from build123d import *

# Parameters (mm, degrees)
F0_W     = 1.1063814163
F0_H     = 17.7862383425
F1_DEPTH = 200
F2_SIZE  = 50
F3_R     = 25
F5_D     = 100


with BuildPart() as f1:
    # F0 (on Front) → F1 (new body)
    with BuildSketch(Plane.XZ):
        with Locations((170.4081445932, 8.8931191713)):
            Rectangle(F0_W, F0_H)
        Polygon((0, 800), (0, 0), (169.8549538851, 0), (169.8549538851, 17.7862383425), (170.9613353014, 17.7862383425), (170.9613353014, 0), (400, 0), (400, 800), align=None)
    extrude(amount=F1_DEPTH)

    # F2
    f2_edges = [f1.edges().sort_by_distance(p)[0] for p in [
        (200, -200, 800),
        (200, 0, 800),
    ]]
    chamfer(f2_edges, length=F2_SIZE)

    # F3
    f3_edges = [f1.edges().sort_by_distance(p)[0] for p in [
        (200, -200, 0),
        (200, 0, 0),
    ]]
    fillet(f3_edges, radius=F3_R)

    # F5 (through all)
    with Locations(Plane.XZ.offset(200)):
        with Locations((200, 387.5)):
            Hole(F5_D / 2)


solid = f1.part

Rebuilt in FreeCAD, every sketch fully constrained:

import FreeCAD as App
import Part
import Sketcher
Q = App.Units.Quantity


def edges_at(feature, points):
    """Names of the edges that pass closest to the given points."""
    edges = feature.Shape.Edges
    near = lambda p: min(range(len(edges)), key=lambda i: edges[i].distToShape(Part.Vertex(*p))[0])
    return sorted({f"Edge{near(p) + 1}" for p in points})

doc = App.newDocument("Part")
params = doc.addObject("Spreadsheet::Sheet", "Params")
for row, (alias, value) in enumerate([
    ("sketch1_width", "400 mm"),
    ("sketch1_height", "800 mm"),
    ("pad1_length", "200 mm"),
    ("chamfer_size", "50 mm"),
    ("fillet_radius", "25 mm"),
    ("sketch2_diameter", "100 mm"),
    ("hole_diameter", "100 mm"),
], start=1):
    params.set(f"A{row}", alias)
    params.set(f"B{row}", "=" + value)
    params.setAlias(f"B{row}", alias)

body = doc.addObject("PartDesign::Body", "Body")

sketch1 = body.newObject("Sketcher::SketchObject", "Sketch")
sketch1.AttachmentSupport = (doc.getObject("XZ_Plane"), [""])
sketch1.MapMode = "FlatFace"
sketch1.addGeometry(Part.LineSegment(App.Vector(400, 0, 0), App.Vector(400, 800, 0)), False)
sketch1.addGeometry(Part.LineSegment(App.Vector(400, 800, 0), App.Vector(0, 800, 0)), False)
sketch1.addGeometry(Part.LineSegment(App.Vector(0, 800, 0), App.Vector(0, 0, 0)), False)
sketch1.addGeometry(Part.LineSegment(App.Vector(0, 0, 0), App.Vector(400, 0, 0)), False)
sketch1.addConstraint(Sketcher.Constraint("Coincident", 0, 2, 1, 1))
sketch1.addConstraint(Sketcher.Constraint("Coincident", 1, 2, 2, 1))
sketch1.addConstraint(Sketcher.Constraint("Coincident", 2, 2, 3, 1))
sketch1.addConstraint(Sketcher.Constraint("Coincident", 3, 2, 0, 1))
sketch1.addConstraint(Sketcher.Constraint("Vertical", 0))
sketch1.addConstraint(Sketcher.Constraint("Horizontal", 1))
sketch1.addConstraint(Sketcher.Constraint("Vertical", 2))
sketch1.addConstraint(Sketcher.Constraint("Horizontal", 3))
sketch1.addConstraint(Sketcher.Constraint("Coincident", 2, 2, -1, 1))
sketch1.addConstraint(Sketcher.Constraint("DistanceX", 1, 2, 1, 1, Q("400 mm")))
sketch1.addConstraint(Sketcher.Constraint("DistanceY", 0, 1, 0, 2, Q("800 mm")))
sketch1.setExpression("Constraints[9]", "Params.sketch1_width")
sketch1.setExpression("Constraints[10]", "Params.sketch1_height")
pad1 = body.newObject("PartDesign::Pad", "Pad")
pad1.Profile = sketch1
pad1.setExpression("Length", "Params.pad1_length")
doc.recompute()

chamfer = body.newObject("PartDesign::Chamfer", "Chamfer")
chamfer.Base = (pad1, edges_at(pad1, [(200, -200, 800), (200, 0, 800)]))
chamfer.setExpression("Size", "Params.chamfer_size")
doc.recompute()

fillet = body.newObject("PartDesign::Fillet", "Fillet")
fillet.Base = (chamfer, edges_at(chamfer, [(200, -200, 0), (200, 0, 0)]))
fillet.setExpression("Radius", "Params.fillet_radius")

sketch2 = body.newObject("Sketcher::SketchObject", "Sketch001")
sketch2.AttachmentSupport = (doc.getObject("XZ_Plane"), [""])
sketch2.MapMode = "FlatFace"
sketch2.AttachmentOffset = App.Placement(App.Vector(0, 0, 200), App.Rotation())
sketch2.addGeometry(Part.Circle(App.Vector(200, 388, 0), App.Vector(0, 0, 1), 50), False)
sketch2.addConstraint(Sketcher.Constraint("Diameter", 0, Q("100 mm")))
sketch2.addConstraint(Sketcher.Constraint("DistanceX", -1, 1, 0, 3, Q("200 mm")))
sketch2.addConstraint(Sketcher.Constraint("DistanceY", -1, 1, 0, 3, Q("387.5 mm")))
sketch2.setExpression("Constraints[0]", "Params.sketch2_diameter")
doc.recompute()
hole = body.newObject("PartDesign::Hole", "Hole")
hole.Profile = sketch2
hole.ThreadType = "None"
hole.setExpression("Diameter", "Params.hole_diameter")
hole.DepthType = "ThroughAll"

doc.recompute()
